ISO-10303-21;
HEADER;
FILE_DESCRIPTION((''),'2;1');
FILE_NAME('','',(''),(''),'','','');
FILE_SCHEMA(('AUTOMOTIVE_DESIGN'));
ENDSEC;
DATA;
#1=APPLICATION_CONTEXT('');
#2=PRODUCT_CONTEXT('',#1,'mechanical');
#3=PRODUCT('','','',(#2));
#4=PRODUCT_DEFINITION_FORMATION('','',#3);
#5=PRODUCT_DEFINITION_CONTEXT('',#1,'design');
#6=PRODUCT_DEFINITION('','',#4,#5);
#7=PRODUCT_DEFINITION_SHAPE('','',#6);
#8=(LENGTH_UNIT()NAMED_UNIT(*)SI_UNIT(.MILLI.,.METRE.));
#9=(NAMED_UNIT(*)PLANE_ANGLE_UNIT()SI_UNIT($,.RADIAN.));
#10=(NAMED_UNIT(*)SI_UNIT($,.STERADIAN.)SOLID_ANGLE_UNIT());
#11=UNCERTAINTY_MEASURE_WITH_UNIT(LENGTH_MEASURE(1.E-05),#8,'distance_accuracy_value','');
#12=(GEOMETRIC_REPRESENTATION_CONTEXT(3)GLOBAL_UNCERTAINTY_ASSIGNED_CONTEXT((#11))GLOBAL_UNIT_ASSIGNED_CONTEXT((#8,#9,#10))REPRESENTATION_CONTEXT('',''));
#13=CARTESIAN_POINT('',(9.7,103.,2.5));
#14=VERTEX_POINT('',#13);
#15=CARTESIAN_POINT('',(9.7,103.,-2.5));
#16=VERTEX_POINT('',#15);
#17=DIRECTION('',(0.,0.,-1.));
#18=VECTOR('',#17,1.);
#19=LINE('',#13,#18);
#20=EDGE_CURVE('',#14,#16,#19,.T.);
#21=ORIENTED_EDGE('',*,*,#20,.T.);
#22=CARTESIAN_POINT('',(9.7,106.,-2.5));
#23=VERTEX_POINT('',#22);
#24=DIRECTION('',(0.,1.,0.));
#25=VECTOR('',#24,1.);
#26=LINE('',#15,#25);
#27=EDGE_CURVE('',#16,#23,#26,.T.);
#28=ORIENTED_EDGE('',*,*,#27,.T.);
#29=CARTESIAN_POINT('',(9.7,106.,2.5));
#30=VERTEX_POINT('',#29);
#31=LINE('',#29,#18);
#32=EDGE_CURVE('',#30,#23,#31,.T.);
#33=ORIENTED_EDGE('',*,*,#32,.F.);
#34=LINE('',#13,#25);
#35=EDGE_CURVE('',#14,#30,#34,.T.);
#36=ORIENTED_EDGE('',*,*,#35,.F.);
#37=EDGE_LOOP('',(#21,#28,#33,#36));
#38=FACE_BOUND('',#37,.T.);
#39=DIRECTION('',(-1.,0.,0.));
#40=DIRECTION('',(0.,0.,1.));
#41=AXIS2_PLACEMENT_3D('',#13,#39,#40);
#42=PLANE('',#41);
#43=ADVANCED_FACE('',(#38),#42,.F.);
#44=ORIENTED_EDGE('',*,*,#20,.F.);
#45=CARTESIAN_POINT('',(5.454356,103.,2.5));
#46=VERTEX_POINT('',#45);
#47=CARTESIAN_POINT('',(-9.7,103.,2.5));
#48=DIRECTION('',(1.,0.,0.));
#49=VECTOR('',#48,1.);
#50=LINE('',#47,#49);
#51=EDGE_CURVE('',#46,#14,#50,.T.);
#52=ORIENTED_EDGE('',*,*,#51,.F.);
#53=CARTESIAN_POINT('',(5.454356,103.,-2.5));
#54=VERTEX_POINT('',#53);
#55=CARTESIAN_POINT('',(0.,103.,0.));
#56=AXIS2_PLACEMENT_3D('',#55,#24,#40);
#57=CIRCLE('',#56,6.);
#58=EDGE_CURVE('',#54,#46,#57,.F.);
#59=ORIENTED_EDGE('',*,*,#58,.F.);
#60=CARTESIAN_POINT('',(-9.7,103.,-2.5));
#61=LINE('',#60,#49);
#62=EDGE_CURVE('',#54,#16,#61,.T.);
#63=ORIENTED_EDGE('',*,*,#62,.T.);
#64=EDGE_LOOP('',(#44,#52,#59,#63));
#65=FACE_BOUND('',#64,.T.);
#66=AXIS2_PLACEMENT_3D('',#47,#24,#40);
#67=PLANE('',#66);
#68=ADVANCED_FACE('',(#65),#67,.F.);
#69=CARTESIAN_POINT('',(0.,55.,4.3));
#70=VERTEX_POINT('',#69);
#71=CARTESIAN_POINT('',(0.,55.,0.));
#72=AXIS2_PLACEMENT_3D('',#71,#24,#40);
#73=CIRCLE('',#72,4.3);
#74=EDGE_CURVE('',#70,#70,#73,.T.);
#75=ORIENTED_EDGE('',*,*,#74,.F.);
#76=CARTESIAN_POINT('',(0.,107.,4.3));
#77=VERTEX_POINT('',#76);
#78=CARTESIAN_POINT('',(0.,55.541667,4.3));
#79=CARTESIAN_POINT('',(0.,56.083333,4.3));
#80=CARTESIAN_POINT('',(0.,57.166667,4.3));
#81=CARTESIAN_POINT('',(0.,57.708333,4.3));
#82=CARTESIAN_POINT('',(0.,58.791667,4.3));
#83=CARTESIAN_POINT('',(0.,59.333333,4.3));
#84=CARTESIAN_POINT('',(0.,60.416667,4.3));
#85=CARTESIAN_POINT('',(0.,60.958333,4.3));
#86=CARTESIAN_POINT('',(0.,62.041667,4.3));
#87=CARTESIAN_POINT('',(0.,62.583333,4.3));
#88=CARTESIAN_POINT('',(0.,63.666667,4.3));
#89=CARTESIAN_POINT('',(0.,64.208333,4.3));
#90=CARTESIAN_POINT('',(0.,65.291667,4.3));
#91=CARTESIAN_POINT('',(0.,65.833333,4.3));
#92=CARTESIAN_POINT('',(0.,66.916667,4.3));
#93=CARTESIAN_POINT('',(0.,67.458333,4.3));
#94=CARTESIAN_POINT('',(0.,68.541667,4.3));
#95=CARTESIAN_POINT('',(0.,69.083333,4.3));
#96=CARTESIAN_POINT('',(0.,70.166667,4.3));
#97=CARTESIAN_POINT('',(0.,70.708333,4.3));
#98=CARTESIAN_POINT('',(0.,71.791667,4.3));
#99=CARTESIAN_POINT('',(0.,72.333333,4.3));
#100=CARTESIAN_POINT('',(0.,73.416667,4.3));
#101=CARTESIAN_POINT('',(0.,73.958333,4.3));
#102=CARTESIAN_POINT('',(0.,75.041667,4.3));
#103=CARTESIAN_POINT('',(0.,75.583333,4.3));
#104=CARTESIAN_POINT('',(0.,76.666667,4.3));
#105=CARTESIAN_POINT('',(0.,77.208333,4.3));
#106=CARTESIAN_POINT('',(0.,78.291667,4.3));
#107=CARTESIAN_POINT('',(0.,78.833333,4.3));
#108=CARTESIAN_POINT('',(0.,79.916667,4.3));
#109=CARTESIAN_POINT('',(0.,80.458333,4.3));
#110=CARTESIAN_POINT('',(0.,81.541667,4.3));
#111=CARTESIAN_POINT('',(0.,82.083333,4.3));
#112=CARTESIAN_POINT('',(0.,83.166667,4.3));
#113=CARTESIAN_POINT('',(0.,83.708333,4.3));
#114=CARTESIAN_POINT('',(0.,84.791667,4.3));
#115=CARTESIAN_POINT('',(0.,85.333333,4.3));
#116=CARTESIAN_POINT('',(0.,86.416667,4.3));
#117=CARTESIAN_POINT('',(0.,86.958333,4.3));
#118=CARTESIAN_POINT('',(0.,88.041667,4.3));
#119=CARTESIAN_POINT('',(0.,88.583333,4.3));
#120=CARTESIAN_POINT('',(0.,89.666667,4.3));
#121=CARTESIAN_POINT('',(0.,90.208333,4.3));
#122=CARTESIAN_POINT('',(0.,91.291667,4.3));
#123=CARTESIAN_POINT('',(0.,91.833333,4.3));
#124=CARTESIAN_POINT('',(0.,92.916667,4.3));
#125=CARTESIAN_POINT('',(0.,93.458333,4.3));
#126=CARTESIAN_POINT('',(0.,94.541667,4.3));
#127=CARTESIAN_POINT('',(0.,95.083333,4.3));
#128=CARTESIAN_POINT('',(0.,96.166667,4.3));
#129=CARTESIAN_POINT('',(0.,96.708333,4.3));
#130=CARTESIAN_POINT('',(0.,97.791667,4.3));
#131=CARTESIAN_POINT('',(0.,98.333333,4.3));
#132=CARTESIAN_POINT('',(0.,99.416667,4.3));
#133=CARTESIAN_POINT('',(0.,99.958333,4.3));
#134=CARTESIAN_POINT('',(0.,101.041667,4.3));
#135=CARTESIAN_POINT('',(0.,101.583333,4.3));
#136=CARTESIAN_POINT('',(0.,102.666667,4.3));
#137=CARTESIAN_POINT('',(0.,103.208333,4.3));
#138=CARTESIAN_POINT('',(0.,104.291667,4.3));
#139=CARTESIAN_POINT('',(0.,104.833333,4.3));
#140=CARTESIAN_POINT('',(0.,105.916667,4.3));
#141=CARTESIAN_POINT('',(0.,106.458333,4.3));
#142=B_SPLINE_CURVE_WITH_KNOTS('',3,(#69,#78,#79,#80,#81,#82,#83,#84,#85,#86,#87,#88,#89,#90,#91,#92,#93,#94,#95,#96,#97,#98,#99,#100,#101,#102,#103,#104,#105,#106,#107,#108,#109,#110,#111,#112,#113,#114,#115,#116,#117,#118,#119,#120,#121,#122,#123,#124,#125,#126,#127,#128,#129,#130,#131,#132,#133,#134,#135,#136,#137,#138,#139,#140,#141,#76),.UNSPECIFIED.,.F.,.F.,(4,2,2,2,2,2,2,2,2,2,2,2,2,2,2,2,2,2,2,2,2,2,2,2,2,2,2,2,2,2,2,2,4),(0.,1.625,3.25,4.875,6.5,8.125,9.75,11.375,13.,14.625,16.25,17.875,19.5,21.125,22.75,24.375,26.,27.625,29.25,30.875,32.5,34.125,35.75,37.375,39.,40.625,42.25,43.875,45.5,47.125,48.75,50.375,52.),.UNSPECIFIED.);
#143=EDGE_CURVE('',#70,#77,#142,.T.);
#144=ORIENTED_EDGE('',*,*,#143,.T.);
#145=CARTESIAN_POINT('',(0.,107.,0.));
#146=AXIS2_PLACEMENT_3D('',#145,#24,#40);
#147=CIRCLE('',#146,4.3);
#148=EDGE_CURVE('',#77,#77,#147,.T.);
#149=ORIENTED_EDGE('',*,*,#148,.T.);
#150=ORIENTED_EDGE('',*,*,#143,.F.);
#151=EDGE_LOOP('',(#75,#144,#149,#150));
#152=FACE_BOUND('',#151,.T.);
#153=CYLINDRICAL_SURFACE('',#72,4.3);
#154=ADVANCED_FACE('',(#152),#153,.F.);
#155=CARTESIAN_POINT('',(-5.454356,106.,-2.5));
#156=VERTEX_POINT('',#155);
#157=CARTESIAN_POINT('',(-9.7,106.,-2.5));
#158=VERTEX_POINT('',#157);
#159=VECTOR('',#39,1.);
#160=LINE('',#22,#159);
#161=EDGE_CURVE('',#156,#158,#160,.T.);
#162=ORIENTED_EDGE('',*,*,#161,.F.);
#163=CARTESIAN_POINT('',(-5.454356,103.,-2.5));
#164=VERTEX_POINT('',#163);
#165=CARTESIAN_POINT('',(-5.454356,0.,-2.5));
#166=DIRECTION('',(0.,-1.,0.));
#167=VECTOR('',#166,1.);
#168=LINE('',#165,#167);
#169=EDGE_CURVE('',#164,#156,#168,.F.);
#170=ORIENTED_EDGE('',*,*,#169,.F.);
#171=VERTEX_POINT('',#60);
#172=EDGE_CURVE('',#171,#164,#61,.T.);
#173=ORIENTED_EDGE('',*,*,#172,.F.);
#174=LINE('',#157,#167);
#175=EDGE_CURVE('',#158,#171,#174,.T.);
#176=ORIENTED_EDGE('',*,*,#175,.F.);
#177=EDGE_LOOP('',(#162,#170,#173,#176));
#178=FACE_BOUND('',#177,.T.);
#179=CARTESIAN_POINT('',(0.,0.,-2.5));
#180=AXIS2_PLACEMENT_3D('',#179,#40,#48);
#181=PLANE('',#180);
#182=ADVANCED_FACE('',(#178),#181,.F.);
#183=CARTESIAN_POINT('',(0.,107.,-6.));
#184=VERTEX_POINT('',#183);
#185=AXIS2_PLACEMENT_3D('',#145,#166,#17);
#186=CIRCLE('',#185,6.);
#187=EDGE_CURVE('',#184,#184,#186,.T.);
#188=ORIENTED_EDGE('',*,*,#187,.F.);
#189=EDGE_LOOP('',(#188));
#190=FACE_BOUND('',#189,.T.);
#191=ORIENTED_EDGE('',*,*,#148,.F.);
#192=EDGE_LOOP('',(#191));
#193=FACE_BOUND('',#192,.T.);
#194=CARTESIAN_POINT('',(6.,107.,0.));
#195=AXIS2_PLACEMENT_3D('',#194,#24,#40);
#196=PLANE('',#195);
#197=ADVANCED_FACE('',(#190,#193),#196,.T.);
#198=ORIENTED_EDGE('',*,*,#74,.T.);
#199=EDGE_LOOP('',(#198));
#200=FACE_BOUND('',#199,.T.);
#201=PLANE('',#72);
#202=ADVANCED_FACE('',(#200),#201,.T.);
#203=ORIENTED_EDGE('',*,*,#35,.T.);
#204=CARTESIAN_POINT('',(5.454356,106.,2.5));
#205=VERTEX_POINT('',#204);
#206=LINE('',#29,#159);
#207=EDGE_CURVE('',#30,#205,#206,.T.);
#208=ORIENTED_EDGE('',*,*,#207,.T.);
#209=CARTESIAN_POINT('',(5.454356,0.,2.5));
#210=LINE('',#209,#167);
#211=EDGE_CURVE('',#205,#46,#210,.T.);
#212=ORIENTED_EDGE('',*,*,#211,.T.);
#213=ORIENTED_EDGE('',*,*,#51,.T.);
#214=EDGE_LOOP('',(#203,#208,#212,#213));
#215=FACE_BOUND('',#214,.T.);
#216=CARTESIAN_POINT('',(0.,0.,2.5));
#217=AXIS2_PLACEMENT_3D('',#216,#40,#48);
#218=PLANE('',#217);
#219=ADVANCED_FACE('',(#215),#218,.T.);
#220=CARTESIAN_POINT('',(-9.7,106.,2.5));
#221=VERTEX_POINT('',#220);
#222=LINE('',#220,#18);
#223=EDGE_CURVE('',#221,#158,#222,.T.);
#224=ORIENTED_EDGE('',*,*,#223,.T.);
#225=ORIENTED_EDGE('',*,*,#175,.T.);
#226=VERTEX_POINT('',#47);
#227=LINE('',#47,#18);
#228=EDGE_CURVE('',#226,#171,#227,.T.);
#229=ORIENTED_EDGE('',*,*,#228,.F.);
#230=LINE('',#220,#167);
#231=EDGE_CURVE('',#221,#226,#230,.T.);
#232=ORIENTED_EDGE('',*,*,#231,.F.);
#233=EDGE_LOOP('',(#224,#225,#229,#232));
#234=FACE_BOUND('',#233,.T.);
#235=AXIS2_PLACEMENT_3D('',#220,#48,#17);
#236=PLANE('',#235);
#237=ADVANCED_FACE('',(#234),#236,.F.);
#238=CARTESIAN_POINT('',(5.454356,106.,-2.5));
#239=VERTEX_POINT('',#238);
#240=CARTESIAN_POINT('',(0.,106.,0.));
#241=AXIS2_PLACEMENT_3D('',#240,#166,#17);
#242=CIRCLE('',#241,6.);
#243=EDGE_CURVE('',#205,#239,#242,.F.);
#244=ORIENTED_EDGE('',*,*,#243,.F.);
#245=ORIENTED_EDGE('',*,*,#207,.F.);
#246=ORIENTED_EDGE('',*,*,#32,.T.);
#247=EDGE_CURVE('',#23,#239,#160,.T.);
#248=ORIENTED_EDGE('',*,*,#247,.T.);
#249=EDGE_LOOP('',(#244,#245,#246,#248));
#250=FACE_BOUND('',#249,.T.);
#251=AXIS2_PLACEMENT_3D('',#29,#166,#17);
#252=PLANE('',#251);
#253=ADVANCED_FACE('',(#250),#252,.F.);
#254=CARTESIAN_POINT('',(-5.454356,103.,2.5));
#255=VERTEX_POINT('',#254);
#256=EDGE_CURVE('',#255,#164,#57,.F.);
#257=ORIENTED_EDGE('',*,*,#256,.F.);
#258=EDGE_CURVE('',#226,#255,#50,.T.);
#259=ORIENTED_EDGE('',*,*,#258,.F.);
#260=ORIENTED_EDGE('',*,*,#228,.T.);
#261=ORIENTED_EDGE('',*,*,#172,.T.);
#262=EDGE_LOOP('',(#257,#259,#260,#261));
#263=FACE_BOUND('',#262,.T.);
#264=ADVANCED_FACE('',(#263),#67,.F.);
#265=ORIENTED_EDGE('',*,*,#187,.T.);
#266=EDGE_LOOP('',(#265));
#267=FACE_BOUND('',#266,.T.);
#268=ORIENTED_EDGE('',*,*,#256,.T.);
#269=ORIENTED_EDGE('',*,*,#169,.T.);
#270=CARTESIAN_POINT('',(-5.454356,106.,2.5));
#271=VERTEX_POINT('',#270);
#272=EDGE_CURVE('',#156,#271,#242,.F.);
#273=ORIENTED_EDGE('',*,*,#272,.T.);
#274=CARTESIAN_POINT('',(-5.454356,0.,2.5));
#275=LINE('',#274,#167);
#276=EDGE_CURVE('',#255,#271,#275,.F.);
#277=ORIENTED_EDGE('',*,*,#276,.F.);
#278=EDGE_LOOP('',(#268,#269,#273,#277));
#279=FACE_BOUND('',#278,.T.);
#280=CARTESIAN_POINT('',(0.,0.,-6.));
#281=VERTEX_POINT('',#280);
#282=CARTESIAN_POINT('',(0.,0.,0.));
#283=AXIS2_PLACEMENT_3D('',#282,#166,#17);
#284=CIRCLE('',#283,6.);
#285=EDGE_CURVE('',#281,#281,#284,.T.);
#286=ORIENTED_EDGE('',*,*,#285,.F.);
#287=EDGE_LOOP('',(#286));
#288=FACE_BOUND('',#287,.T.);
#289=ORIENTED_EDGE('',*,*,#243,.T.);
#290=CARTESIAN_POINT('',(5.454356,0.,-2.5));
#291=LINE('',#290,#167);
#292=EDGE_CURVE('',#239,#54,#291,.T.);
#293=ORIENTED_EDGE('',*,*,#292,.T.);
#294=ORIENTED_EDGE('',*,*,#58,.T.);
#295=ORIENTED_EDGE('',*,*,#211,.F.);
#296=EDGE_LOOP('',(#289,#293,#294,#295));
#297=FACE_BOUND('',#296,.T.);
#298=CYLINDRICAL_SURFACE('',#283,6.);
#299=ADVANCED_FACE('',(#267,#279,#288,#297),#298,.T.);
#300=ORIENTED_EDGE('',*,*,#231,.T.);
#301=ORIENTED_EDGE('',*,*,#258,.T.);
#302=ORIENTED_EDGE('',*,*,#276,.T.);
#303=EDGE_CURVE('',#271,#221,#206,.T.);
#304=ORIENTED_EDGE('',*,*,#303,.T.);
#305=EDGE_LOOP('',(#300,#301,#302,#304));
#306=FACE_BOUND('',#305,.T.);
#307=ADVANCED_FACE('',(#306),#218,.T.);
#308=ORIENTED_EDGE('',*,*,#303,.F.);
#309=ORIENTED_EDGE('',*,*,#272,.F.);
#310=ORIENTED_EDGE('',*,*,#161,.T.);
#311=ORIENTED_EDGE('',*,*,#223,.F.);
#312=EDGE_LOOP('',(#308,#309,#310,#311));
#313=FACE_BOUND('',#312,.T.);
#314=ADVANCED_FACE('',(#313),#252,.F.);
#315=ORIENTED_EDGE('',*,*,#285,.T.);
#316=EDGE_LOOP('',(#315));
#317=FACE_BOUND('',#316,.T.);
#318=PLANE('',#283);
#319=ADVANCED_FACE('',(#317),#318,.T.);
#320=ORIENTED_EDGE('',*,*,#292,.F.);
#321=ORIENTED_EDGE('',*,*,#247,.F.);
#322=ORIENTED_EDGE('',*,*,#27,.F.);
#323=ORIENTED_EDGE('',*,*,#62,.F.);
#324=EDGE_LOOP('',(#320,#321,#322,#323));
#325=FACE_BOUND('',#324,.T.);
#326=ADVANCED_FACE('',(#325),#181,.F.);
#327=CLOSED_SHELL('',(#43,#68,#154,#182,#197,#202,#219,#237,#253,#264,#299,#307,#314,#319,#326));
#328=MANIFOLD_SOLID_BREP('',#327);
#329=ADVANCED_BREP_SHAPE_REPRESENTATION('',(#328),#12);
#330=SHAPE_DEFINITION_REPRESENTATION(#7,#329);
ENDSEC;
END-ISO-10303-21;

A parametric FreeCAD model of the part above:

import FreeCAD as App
import Part
import Sketcher
Q = App.Units.Quantity

doc = App.newDocument("Part")
params = doc.addObject("Spreadsheet::Sheet", "Params")
for row, (alias, value) in enumerate([
    ("sketch1_width", "6 mm"),
    ("sketch1_height", "107 mm"),
    ("revolution_angle", "360 deg"),
    ("sketch2_height", "3 mm"),
    ("sketch2_width", "19.4 mm"),
    ("pad1_length", "5 mm"),
    ("sketch3_diameter", "8.6 mm"),
    ("pocket1_length", "52 mm"),
], start=1):
    params.set(f"A{row}", alias)
    params.set(f"B{row}", "=" + value)
    params.setAlias(f"B{row}", alias)

body = doc.addObject("PartDesign::Body", "Body")

# Sketch on XY plane
sketch1 = body.newObject("Sketcher::SketchObject", "Sketch")
sketch1.AttachmentSupport = (doc.getObject("XY_Plane"), [""])
sketch1.MapMode = "FlatFace"
sketch1.addGeometry(Part.LineSegment(App.Vector(0, 107, 0), App.Vector(0, 0, 0)), False)
sketch1.addGeometry(Part.LineSegment(App.Vector(0, 0, 0), App.Vector(6, 0, 0)), False)
sketch1.addGeometry(Part.LineSegment(App.Vector(6, 0, 0), App.Vector(6, 107, 0)), False)
sketch1.addGeometry(Part.LineSegment(App.Vector(6, 107, 0), App.Vector(0, 107, 0)), False)
sketch1.addConstraint(Sketcher.Constraint("Coincident", 0, 2, 1, 1))
sketch1.addConstraint(Sketcher.Constraint("Coincident", 1, 2, 2, 1))
sketch1.addConstraint(Sketcher.Constraint("Coincident", 2, 2, 3, 1))
sketch1.addConstraint(Sketcher.Constraint("Coincident", 3, 2, 0, 1))
sketch1.addConstraint(Sketcher.Constraint("Vertical", 0))
sketch1.addConstraint(Sketcher.Constraint("Horizontal", 1))
sketch1.addConstraint(Sketcher.Constraint("Vertical", 2))
sketch1.addConstraint(Sketcher.Constraint("Horizontal", 3))
sketch1.addConstraint(Sketcher.Constraint("Coincident", 0, 2, -1, 1))
sketch1.addConstraint(Sketcher.Constraint("DistanceX", 1, 1, 1, 2, Q("6 mm")))
sketch1.addConstraint(Sketcher.Constraint("DistanceY", 0, 2, 0, 1, Q("107 mm")))
sketch1.setExpression("Constraints[9]", "Params.sketch1_width")
sketch1.setExpression("Constraints[10]", "Params.sketch1_height")
revolution = body.newObject("PartDesign::Revolution", "Revolution")
revolution.Profile = sketch1
revolution.ReferenceAxis = (sketch1, ["V_Axis"])
revolution.setExpression("Angle", "Params.revolution_angle")

# Sketch on XY plane
sketch2 = body.newObject("Sketcher::SketchObject", "Sketch001")
sketch2.AttachmentSupport = (doc.getObject("XY_Plane"), [""])
sketch2.MapMode = "FlatFace"
sketch2.AttachmentOffset = App.Placement(App.Vector(0, 0, -2.5), App.Rotation())
sketch2.addGeometry(Part.LineSegment(App.Vector(-9.7, 106, 0), App.Vector(-9.7, 103, 0)), False)
sketch2.addGeometry(Part.LineSegment(App.Vector(-9.7, 103, 0), App.Vector(9.7, 103, 0)), False)
sketch2.addGeometry(Part.LineSegment(App.Vector(9.7, 103, 0), App.Vector(9.7, 106, 0)), False)
sketch2.addGeometry(Part.LineSegment(App.Vector(9.7, 106, 0), App.Vector(-9.7, 106, 0)), False)
sketch2.addConstraint(Sketcher.Constraint("Coincident", 0, 2, 1, 1))
sketch2.addConstraint(Sketcher.Constraint("Coincident", 1, 2, 2, 1))
sketch2.addConstraint(Sketcher.Constraint("Coincident", 2, 2, 3, 1))
sketch2.addConstraint(Sketcher.Constraint("Coincident", 3, 2, 0, 1))
sketch2.addConstraint(Sketcher.Constraint("Vertical", 0))
sketch2.addConstraint(Sketcher.Constraint("Horizontal", 1))
sketch2.addConstraint(Sketcher.Constraint("Vertical", 2))
sketch2.addConstraint(Sketcher.Constraint("Horizontal", 3))
sketch2.addConstraint(Sketcher.Constraint("DistanceY", 0, 2, 0, 1, Q("3 mm")))
sketch2.addConstraint(Sketcher.Constraint("DistanceX", 1, 1, 1, 2, Q("19.4 mm")))
sketch2.addConstraint(Sketcher.Constraint("DistanceY", -1, 1, 0, 2, Q("103 mm")))
sketch2.addConstraint(Sketcher.Constraint("DistanceX", 0, 2, -1, 1, Q("9.7 mm")))
sketch2.setExpression("Constraints[8]", "Params.sketch2_height")
sketch2.setExpression("Constraints[9]", "Params.sketch2_width")
pad1 = body.newObject("PartDesign::Pad", "Pad")
pad1.Profile = sketch2
pad1.setExpression("Length", "Params.pad1_length")

# Sketch on XZ plane
sketch3 = body.newObject("Sketcher::SketchObject", "Sketch002")
sketch3.AttachmentSupport = (doc.getObject("XZ_Plane"), [""])
sketch3.MapMode = "FlatFace"
sketch3.AttachmentOffset = App.Placement(App.Vector(0, 0, -107), App.Rotation())
sketch3.addGeometry(Part.Circle(App.Vector(0, 0, 0), App.Vector(0, 0, 1), 4.3), False)
sketch3.addConstraint(Sketcher.Constraint("Coincident", 0, 3, -1, 1))
sketch3.addConstraint(Sketcher.Constraint("Diameter", 0, Q("8.6 mm")))
sketch3.setExpression("Constraints[1]", "Params.sketch3_diameter")
pocket1 = body.newObject("PartDesign::Pocket", "Pocket")
pocket1.Profile = sketch3
pocket1.setExpression("Length", "Params.pocket1_length")
pocket1.Reversed = True

doc.recompute()
